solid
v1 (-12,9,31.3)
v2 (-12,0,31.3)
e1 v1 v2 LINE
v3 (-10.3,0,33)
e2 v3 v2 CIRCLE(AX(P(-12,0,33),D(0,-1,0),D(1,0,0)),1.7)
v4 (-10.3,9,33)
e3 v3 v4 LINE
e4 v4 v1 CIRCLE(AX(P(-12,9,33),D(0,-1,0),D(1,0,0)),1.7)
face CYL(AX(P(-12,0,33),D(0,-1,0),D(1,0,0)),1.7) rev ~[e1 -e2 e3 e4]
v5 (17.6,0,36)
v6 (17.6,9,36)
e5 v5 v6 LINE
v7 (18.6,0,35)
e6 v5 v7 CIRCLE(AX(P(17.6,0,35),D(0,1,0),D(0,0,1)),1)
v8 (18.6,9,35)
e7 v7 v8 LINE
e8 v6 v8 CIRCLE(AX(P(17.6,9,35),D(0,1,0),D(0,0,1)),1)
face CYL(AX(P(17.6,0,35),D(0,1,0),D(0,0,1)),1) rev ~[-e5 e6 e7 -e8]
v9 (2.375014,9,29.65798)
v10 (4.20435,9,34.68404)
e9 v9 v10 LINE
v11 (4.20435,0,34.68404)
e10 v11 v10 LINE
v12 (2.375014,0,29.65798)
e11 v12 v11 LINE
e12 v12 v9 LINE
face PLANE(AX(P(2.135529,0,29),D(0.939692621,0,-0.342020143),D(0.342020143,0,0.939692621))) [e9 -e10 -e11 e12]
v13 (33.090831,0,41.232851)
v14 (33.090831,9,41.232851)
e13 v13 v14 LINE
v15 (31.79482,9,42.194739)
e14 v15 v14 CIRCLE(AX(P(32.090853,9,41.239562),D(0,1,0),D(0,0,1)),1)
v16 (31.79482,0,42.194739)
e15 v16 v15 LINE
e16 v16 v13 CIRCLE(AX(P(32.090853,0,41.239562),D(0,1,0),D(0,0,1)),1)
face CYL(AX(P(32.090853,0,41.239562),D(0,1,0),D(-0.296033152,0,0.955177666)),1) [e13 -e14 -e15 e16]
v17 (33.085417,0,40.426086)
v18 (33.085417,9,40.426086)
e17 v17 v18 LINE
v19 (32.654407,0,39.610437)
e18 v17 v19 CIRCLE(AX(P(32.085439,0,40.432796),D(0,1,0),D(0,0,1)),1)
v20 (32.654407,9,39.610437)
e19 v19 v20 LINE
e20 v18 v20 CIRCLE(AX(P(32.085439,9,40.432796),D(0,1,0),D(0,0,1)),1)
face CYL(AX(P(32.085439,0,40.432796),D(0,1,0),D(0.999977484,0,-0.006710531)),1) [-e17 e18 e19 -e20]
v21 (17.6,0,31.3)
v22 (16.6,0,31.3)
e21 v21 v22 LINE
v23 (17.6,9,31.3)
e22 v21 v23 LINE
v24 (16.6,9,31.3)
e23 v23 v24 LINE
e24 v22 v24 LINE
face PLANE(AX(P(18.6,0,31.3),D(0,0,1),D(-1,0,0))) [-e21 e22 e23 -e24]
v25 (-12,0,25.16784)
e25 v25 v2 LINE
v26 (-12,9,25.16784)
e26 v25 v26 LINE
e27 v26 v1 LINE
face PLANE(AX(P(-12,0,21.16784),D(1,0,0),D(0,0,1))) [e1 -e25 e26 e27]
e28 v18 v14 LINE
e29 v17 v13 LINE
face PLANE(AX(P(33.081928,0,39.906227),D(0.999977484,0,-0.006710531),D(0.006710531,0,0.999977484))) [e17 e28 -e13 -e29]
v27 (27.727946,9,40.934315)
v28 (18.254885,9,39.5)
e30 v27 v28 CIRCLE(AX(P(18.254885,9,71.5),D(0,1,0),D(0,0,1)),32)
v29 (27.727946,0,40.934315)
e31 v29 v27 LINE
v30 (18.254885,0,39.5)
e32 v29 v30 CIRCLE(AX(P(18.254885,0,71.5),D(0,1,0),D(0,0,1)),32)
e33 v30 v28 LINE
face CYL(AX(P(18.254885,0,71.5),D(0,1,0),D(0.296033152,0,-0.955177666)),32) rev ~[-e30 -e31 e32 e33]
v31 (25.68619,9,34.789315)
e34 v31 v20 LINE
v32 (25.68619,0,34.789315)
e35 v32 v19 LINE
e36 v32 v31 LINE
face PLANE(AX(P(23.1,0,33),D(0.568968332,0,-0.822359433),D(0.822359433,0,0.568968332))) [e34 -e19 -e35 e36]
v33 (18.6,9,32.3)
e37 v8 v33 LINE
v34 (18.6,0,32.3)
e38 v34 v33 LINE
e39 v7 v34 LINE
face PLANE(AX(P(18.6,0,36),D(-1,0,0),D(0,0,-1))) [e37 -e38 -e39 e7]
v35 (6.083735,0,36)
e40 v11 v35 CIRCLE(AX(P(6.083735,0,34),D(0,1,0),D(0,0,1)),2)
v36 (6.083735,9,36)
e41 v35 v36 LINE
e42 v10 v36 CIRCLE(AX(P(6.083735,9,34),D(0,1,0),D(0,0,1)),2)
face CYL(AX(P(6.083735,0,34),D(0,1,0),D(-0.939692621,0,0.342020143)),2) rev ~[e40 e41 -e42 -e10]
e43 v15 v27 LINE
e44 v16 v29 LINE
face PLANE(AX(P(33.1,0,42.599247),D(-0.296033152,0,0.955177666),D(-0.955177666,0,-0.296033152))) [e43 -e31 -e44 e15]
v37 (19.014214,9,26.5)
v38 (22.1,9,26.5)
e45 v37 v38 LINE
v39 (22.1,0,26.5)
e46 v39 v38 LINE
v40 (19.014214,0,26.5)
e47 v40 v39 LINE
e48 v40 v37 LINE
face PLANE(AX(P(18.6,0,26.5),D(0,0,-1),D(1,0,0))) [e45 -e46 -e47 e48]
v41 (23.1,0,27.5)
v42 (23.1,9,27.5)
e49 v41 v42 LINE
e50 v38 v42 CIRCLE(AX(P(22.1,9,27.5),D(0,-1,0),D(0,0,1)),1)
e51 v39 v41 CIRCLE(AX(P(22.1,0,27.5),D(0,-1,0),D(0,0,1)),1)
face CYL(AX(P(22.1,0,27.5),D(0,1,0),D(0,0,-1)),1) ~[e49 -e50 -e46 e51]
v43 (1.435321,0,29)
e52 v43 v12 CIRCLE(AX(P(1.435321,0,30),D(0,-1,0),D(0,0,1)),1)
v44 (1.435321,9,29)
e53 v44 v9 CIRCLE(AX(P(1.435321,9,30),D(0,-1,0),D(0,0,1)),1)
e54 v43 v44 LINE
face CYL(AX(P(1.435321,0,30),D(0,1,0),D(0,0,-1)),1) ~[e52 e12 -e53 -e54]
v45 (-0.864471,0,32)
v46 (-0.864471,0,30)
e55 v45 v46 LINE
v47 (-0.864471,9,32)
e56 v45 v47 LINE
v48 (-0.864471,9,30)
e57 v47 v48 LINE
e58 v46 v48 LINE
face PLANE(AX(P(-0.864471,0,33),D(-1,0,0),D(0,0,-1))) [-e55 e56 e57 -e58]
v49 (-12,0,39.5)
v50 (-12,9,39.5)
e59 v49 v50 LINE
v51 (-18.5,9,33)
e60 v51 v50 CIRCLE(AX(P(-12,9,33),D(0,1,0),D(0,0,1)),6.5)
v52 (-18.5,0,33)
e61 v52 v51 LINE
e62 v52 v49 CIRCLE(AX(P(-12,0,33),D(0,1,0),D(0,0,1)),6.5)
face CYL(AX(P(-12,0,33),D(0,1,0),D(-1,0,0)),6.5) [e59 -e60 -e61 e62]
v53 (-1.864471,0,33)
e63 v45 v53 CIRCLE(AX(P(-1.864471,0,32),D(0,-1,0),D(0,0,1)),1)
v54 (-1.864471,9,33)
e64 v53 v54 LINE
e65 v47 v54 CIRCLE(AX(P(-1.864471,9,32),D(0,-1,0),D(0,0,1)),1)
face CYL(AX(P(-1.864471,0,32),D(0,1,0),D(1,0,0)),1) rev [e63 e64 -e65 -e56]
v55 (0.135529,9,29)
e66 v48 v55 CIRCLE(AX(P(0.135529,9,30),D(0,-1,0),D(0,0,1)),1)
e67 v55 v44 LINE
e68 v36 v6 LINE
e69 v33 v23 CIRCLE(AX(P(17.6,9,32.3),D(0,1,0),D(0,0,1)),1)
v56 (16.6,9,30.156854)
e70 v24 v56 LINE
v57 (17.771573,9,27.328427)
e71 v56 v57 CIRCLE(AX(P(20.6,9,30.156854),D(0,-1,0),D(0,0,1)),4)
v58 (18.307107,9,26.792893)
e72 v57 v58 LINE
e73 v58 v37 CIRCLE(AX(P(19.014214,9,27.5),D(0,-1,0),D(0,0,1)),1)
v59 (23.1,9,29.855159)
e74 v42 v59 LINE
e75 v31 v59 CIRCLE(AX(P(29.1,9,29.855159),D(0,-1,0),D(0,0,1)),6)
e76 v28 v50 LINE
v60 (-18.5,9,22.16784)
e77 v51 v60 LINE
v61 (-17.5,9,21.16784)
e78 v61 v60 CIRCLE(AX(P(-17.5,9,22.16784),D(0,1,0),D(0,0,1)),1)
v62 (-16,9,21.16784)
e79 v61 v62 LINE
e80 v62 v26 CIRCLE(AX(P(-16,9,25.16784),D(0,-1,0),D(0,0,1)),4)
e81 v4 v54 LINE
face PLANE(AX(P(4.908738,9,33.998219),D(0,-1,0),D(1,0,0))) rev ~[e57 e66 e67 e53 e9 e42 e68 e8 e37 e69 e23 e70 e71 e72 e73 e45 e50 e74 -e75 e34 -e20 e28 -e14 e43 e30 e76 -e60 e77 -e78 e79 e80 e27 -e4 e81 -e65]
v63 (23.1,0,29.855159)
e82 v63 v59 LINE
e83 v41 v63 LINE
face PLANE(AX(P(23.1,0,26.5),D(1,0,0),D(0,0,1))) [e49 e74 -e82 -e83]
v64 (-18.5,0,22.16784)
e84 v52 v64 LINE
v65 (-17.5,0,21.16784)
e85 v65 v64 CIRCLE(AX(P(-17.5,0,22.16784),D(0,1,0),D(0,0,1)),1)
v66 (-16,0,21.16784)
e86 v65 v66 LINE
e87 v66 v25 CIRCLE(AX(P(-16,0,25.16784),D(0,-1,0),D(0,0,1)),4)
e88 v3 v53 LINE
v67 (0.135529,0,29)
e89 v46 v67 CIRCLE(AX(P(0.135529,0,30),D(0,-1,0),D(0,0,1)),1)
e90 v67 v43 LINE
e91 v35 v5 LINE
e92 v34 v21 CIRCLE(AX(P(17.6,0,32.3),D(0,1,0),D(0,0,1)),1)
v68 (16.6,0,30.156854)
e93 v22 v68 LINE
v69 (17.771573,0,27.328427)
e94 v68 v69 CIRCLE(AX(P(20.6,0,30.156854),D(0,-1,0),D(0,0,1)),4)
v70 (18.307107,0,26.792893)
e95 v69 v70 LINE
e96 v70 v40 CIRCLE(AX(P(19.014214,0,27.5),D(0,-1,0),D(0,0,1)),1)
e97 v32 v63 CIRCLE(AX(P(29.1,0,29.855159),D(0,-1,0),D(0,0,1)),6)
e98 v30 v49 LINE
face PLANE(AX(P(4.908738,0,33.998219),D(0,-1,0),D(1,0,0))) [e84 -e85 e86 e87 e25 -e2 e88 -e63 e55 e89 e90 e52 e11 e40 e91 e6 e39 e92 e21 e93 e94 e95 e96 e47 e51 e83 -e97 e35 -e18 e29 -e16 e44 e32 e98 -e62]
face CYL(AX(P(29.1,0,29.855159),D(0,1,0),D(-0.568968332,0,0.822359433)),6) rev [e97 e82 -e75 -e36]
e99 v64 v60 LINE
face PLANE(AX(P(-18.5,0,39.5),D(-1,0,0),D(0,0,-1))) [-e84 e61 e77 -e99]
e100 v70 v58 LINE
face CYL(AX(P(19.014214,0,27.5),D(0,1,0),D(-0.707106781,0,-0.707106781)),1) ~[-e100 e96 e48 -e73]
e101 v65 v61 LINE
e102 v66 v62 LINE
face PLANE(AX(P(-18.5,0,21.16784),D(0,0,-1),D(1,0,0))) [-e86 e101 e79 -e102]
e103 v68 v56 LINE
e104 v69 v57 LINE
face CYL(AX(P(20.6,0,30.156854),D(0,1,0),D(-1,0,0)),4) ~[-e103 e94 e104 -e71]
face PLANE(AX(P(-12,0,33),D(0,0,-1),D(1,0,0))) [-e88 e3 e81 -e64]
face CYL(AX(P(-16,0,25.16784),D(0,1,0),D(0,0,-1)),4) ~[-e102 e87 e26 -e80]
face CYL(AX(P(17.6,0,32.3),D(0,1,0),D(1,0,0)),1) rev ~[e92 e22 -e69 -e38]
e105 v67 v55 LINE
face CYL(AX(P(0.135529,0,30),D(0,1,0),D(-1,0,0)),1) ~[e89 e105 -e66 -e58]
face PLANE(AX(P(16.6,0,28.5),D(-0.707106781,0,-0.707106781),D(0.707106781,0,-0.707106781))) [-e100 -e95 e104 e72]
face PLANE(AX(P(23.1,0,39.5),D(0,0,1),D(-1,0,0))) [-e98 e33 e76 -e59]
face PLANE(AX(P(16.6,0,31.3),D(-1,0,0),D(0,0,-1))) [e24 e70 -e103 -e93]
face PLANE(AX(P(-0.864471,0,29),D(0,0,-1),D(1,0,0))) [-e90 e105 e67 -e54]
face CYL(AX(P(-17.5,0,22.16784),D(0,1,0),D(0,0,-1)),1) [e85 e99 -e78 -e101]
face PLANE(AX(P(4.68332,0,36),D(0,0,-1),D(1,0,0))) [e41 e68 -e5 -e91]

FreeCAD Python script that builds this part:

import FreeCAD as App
import Part
import Sketcher
from FreeCAD import Vector
Q = App.Units.Quantity


def edges_at(feature, points):
    """Names of the edges that pass closest to the given points."""
    edges = feature.Shape.Edges
    near = lambda p: min(range(len(edges)), key=lambda i: edges[i].distToShape(Part.Vertex(*p))[0])
    return sorted({f"Edge{near(p) + 1}" for p in points})


def add_polygon(sketch, points):
    """Adds a closed chain of lines whose ends are joined by coincident constraints."""
    first, n = sketch.GeometryCount, len(points)
    for a, b in zip(points, points[1:] + points[:1]):
        sketch.addGeometry(Part.LineSegment(App.Vector(*a, 0), App.Vector(*b, 0)), False)
    for i in range(n):
        sketch.addConstraint(Sketcher.Constraint("Coincident", first + i, 2, first + (i + 1) % n, 1))

doc = App.newDocument("Part")
body = doc.addObject("PartDesign::Body", "Body")

# Sketch on XZ plane
sketch1 = doc.addObject("Sketcher::SketchObject", "Sketch")
body.addObject(sketch1)
sketch1.AttachmentSupport = (doc.XZ_Plane, [""])
sketch1.MapMode = "FlatFace"
add_polygon(sketch1, [(-18.1, 39.4), (-18.1, 21.06784), (-11.6, 21.06784), (-11.6, 32.9), (-0.464471, 32.9), (-0.464471, 28.9), (2.535529, 28.9), (5.08332, 35.9), (19, 35.9), (19, 31.2), (17, 31.2), (17, 28.4), (19, 26.4), (23.5, 26.4), (23.5, 32.9), (33.481928, 39.806227), (33.5, 42.499247), (23.5, 39.4)])  # lines 0-17
sketch1.addConstraint(Sketcher.Constraint("Vertical", 0))
sketch1.addConstraint(Sketcher.Constraint("Horizontal", 1))
sketch1.addConstraint(Sketcher.Constraint("Vertical", 2))
sketch1.addConstraint(Sketcher.Constraint("Horizontal", 3))
sketch1.addConstraint(Sketcher.Constraint("Vertical", 4))
sketch1.addConstraint(Sketcher.Constraint("Horizontal", 5))
sketch1.addConstraint(Sketcher.Constraint("Horizontal", 7))
sketch1.addConstraint(Sketcher.Constraint("Vertical", 8))
sketch1.addConstraint(Sketcher.Constraint("Horizontal", 9))
sketch1.addConstraint(Sketcher.Constraint("Vertical", 10))
sketch1.addConstraint(Sketcher.Constraint("Horizontal", 12))
sketch1.addConstraint(Sketcher.Constraint("Vertical", 13))
sketch1.addConstraint(Sketcher.Constraint("Horizontal", 17))
sketch1.addConstraint(Sketcher.Constraint("Horizontal", 3, 2, 13, 2))
sketch1.addConstraint(Sketcher.Constraint("Vertical", 8, 2, 11, 2))
sketch1.addConstraint(Sketcher.Constraint("Vertical", 13, 2, 16, 2))
sketch1.addConstraint(Sketcher.Constraint("Equal", 1, 13))
sketch1.addConstraint(Sketcher.Constraint("DistanceX", 5, 1, 5, 2, 3.0))
sketch1.addConstraint(Sketcher.Constraint("DistanceX", 9, 2, 9, 1, 2.0))
sketch1.addConstraint(Sketcher.Constraint("DistanceY", 4, 2, 4, 1, 4.0))
sketch1.addConstraint(Sketcher.Constraint("Angle", 6, Q("70 deg")))
sketch1.addConstraint(Sketcher.Constraint("Angle", 11, Q("-45 deg")))
sketch1.addConstraint(Sketcher.Constraint("DistanceX", 1, 1, 1, 2, 6.5))
sketch1.addConstraint(Sketcher.Constraint("DistanceX", 12, 1, 12, 2, 4.5))
sketch1.addConstraint(Sketcher.Constraint("DistanceX", 17, 2, 17, 1, 41.6))
sketch1.addConstraint(Sketcher.Constraint("DistanceY", 8, 2, 8, 1, 4.7))
sketch1.addConstraint(Sketcher.Constraint("DistanceY", 10, 2, 10, 1, 2.8))
sketch1.addConstraint(Sketcher.Constraint("DistanceX", -1, 1, 7, 2, 19.0))
sketch1.addConstraint(Sketcher.Constraint("DistanceX", 13, 2, 15, 2, 10.0))
sketch1.addConstraint(Sketcher.Constraint("DistanceY", -1, 1, 2, 2, 32.9))
sketch1.addConstraint(Sketcher.Constraint("DistanceY", -1, 1, 16, 2, 39.4))
sketch1.addConstraint(Sketcher.Constraint("DistanceX", 3, 1, 3, 2, 11.135529))
sketch1.addConstraint(Sketcher.Constraint("DistanceY", 0, 2, 0, 1, 18.33216))
sketch1.addConstraint(Sketcher.Constraint("Distance", 15, 2.693081))
sketch1.addConstraint(Sketcher.Constraint("DistanceX", -1, 1, 14, 2, 33.481928))
sketch1.addConstraint(Sketcher.Constraint("Distance", 14, 12.138157))
pad1 = doc.addObject("PartDesign::Pad", "Pad")
body.addObject(pad1)
pad1.Profile = sketch1
pad1.Length = 9
pad1.Reversed = True
doc.recompute()

fillet = doc.addObject("PartDesign::Fillet", "Fillet")
body.addObject(fillet)
fillet.Base = (pad1, edges_at(pad1, [(-18.1, 4.5, 39.4)]))
fillet.Radius = 6.5
doc.recompute()

fillet2 = doc.addObject("PartDesign::Fillet", "Fillet001")
body.addObject(fillet2)
fillet2.Base = (fillet, edges_at(fillet, [(-11.6, 4.5, 21.068)]))
fillet2.Radius = 4
doc.recompute()

fillet3 = doc.addObject("PartDesign::Fillet", "Fillet002")
body.addObject(fillet3)
fillet3.Base = (fillet2, edges_at(fillet2, [(-0.464, 4.5, 28.9)]))
fillet3.Radius = 1
doc.recompute()

fillet4 = doc.addObject("PartDesign::Fillet", "Fillet003")
body.addObject(fillet4)
fillet4.Base = (fillet3, edges_at(fillet3, [
    (-0.464, 4.5, 32.9),
    (19, 4.5, 35.9),
    (2.536, 4.5, 28.9),
    (23.5, 4.5, 26.4),
    (19, 4.5, 26.4),
    (-18.1, 4.5, 21.068),
    (19, 4.5, 31.2),
]))
fillet4.Radius = 1
doc.recompute()

fillet5 = doc.addObject("PartDesign::Fillet", "Fillet004")
body.addObject(fillet5)
fillet5.Base = (fillet4, edges_at(fillet4, [(5.083, 4.5, 35.9)]))
fillet5.Radius = 2
doc.recompute()

fillet6 = doc.addObject("PartDesign::Fillet", "Fillet005")
body.addObject(fillet6)
fillet6.Base = (fillet5, edges_at(fillet5, [(17, 4.5, 28.4)]))
fillet6.Radius = 4

# Sketch on XZ plane
sketch2 = doc.addObject("Sketcher::SketchObject", "Sketch001")
body.addObject(sketch2)
sketch2.AttachmentSupport = (doc.XZ_Plane, [""])
sketch2.MapMode = "FlatFace"
sketch2.addGeometry(Part.Circle(Vector(-11.6, 32.9, 0), Vector(0, 0, 1), 1.7), False)
sketch2.addConstraint(Sketcher.Constraint("Diameter", 0, 3.4))
sketch2.addConstraint(Sketcher.Constraint("DistanceX", 0, 3, -1, 1, 11.6))
sketch2.addConstraint(Sketcher.Constraint("DistanceY", -1, 1, 0, 3, 32.9))
pocket1 = doc.addObject("PartDesign::Pocket", "Pocket")
body.addObject(pocket1)
pocket1.Profile = sketch2
pocket1.Length = 9
doc.recompute()

fillet7 = doc.addObject("PartDesign::Fillet", "Fillet006")
body.addObject(fillet7)
fillet7.Base = (pocket1, edges_at(pocket1, [(23.5, 4.5, 32.9)]))
fillet7.Radius = 6
doc.recompute()

fillet8 = doc.addObject("PartDesign::Fillet", "Fillet007")
body.addObject(fillet8)
fillet8.Base = (fillet7, edges_at(fillet7, [(23.5, 4.5, 39.4)]))
fillet8.Radius = 32
doc.recompute()

fillet9 = doc.addObject("PartDesign::Fillet", "Fillet008")
body.addObject(fillet9)
fillet9.Base = (fillet8, edges_at(fillet8, [(33.482, 4.5, 39.806), (33.5, 4.5, 42.499)]))
fillet9.Radius = 1
body2 = doc.addObject("PartDesign::Body", "Body001")
doc.recompute()

body.Placement = App.Placement(Vector(-0.4, 0, 0.1), App.Rotation(Vector(0, 0, 1), 0))
boolean = doc.addObject("PartDesign::Boolean", "Boolean")
body2.addObject(boolean)
boolean.Type = "Fuse"
boolean.addObjects([body])

doc.recompute()
